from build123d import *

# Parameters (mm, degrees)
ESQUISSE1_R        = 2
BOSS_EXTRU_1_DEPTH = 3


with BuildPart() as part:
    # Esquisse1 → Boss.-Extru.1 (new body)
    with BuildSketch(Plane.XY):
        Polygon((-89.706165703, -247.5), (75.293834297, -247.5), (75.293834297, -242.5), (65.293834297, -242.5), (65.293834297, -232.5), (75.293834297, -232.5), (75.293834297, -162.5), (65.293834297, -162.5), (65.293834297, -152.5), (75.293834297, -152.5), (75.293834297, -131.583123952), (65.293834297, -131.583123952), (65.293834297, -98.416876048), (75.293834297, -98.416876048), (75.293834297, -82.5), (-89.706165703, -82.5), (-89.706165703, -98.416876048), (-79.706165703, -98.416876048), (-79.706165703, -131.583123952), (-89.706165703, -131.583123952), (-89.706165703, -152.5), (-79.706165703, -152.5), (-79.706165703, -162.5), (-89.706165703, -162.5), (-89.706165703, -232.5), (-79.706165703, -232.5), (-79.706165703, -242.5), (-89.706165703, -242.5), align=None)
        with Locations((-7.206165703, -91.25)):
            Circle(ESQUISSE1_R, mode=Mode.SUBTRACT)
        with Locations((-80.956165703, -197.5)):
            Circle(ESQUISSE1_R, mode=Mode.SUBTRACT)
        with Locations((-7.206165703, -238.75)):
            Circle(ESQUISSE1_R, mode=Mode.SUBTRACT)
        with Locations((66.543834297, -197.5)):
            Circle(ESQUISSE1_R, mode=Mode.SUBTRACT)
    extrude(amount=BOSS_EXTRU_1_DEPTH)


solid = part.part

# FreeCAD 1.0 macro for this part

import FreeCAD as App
import Part
import Sketcher
from FreeCAD import Vector
Q = App.Units.Quantity

doc = App.newDocument("Part")
params = doc.addObject("Spreadsheet::Sheet", "Params")
for row, (alias, value) in enumerate([
    ("sketch1_diameter", "4 mm"),
    ("sketch1_width", "165 mm"),
    ("sketch1_width2", "10 mm"),
    ("sketch1_height", "5 mm"),
    ("sketch1_height2", "70 mm"),
    ("pad1_length", "3 mm"),
], start=1):
    params.set(f"A{row}", alias)
    params.set(f"B{row}", "=" + value)
    params.setAlias(f"B{row}", alias)

body = doc.addObject("PartDesign::Body", "Body")

# Sketch on XY plane
sketch1 = body.newObject("Sketcher::SketchObject", "Sketch")
sketch1.AttachmentSupport = (doc.getObject("XY_Plane"), [""])
sketch1.MapMode = "FlatFace"
sketch1.addGeometry([
    Part.LineSegment(Vector(-89.706166, -247.5, 0), Vector(75.293834, -247.5, 0)),  # 0
    Part.LineSegment(Vector(75.293834, -247.5, 0), Vector(75.293834, -242.5, 0)),  # 1
    Part.LineSegment(Vector(75.293834, -242.5, 0), Vector(65.293834, -242.5, 0)),  # 2
    Part.LineSegment(Vector(65.293834, -242.5, 0), Vector(65.293834, -232.5, 0)),  # 3
    Part.LineSegment(Vector(65.293834, -232.5, 0), Vector(75.293834, -232.5, 0)),  # 4
    Part.LineSegment(Vector(75.293834, -232.5, 0), Vector(75.293834, -162.5, 0)),  # 5
    Part.LineSegment(Vector(75.293834, -162.5, 0), Vector(65.293834, -162.5, 0)),  # 6
    Part.LineSegment(Vector(65.293834, -162.5, 0), Vector(65.293834, -152.5, 0)),  # 7
    Part.LineSegment(Vector(65.293834, -152.5, 0), Vector(75.293834, -152.5, 0)),  # 8
    Part.LineSegment(Vector(75.293834, -152.5, 0), Vector(75.293834, -131.583124, 0)),  # 9
    Part.LineSegment(Vector(75.293834, -131.583124, 0), Vector(65.293834, -131.583124, 0)),  # 10
    Part.LineSegment(Vector(65.293834, -131.583124, 0), Vector(65.293834, -98.416876, 0)),  # 11
    Part.LineSegment(Vector(65.293834, -98.416876, 0), Vector(75.293834, -98.416876, 0)),  # 12
    Part.LineSegment(Vector(75.293834, -98.416876, 0), Vector(75.293834, -82.5, 0)),  # 13
    Part.LineSegment(Vector(75.293834, -82.5, 0), Vector(-89.706166, -82.5, 0)),  # 14
    Part.LineSegment(Vector(-89.706166, -82.5, 0), Vector(-89.706166, -98.416876, 0)),  # 15
    Part.LineSegment(Vector(-89.706166, -98.416876, 0), Vector(-79.706166, -98.416876, 0)),  # 16
    Part.LineSegment(Vector(-79.706166, -98.416876, 0), Vector(-79.706166, -131.583124, 0)),  # 17
    Part.LineSegment(Vector(-79.706166, -131.583124, 0), Vector(-89.706166, -131.583124, 0)),  # 18
    Part.LineSegment(Vector(-89.706166, -131.583124, 0), Vector(-89.706166, -152.5, 0)),  # 19
    Part.LineSegment(Vector(-89.706166, -152.5, 0), Vector(-79.706166, -152.5, 0)),  # 20
    Part.LineSegment(Vector(-79.706166, -152.5, 0), Vector(-79.706166, -162.5, 0)),  # 21
    Part.LineSegment(Vector(-79.706166, -162.5, 0), Vector(-89.706166, -162.5, 0)),  # 22
    Part.LineSegment(Vector(-89.706166, -162.5, 0), Vector(-89.706166, -232.5, 0)),  # 23
    Part.LineSegment(Vector(-89.706166, -232.5, 0), Vector(-79.706166, -232.5, 0)),  # 24
    Part.LineSegment(Vector(-79.706166, -232.5, 0), Vector(-79.706166, -242.5, 0)),  # 25
    Part.LineSegment(Vector(-79.706166, -242.5, 0), Vector(-89.706166, -242.5, 0)),  # 26
    Part.LineSegment(Vector(-89.706166, -242.5, 0), Vector(-89.706166, -247.5, 0)),  # 27
    Part.Circle(Vector(-80.956166, -197.5, 0), Vector(0, 0, 1), 2),  # 28
    Part.Circle(Vector(-7.206166, -238.75, 0), Vector(0, 0, 1), 2),  # 29
    Part.Circle(Vector(66.543834, -197.5, 0), Vector(0, 0, 1), 2),  # 30
    Part.Circle(Vector(-7.206166, -91.25, 0), Vector(0, 0, 1), 2),  # 31
], False)
sketch1.addConstraint([
    Sketcher.Constraint("Coincident", 0, 2, 1, 1),
    Sketcher.Constraint("Coincident", 1, 2, 2, 1),
    Sketcher.Constraint("Coincident", 2, 2, 3, 1),
    Sketcher.Constraint("Coincident", 3, 2, 4, 1),
    Sketcher.Constraint("Coincident", 4, 2, 5, 1),
    Sketcher.Constraint("Coincident", 5, 2, 6, 1),
    Sketcher.Constraint("Coincident", 6, 2, 7, 1),
    Sketcher.Constraint("Coincident", 7, 2, 8, 1),
    Sketcher.Constraint("Coincident", 8, 2, 9, 1),
    Sketcher.Constraint("Coincident", 9, 2, 10, 1),
    Sketcher.Constraint("Coincident", 10, 2, 11, 1),
    Sketcher.Constraint("Coincident", 11, 2, 12, 1),
    Sketcher.Constraint("Coincident", 12, 2, 13, 1),
    Sketcher.Constraint("Coincident", 13, 2, 14, 1),
    Sketcher.Constraint("Coincident", 14, 2, 15, 1),
    Sketcher.Constraint("Coincident", 15, 2, 16, 1),
    Sketcher.Constraint("Coincident", 16, 2, 17, 1),
    Sketcher.Constraint("Coincident", 17, 2, 18, 1),
    Sketcher.Constraint("Coincident", 18, 2, 19, 1),
    Sketcher.Constraint("Coincident", 19, 2, 20, 1),
    Sketcher.Constraint("Coincident", 20, 2, 21, 1),
    Sketcher.Constraint("Coincident", 21, 2, 22, 1),
    Sketcher.Constraint("Coincident", 22, 2, 23, 1),
    Sketcher.Constraint("Coincident", 23, 2, 24, 1),
    Sketcher.Constraint("Coincident", 24, 2, 25, 1),
    Sketcher.Constraint("Coincident", 25, 2, 26, 1),
    Sketcher.Constraint("Coincident", 26, 2, 27, 1),
    Sketcher.Constraint("Coincident", 27, 2, 0, 1),
    Sketcher.Constraint("Horizontal", 0),
    Sketcher.Constraint("Vertical", 1),
    Sketcher.Constraint("Horizontal", 2),
    Sketcher.Constraint("Vertical", 3),
    Sketcher.Constraint("Horizontal", 4),
    Sketcher.Constraint("Vertical", 5),
    Sketcher.Constraint("Horizontal", 6),
    Sketcher.Constraint("Vertical", 7),
    Sketcher.Constraint("Horizontal", 8),
    Sketcher.Constraint("Vertical", 9),
    Sketcher.Constraint("Horizontal", 10),
    Sketcher.Constraint("Vertical", 11),
    Sketcher.Constraint("Horizontal", 12),
    Sketcher.Constraint("Vertical", 13),
    Sketcher.Constraint("Horizontal", 14),
    Sketcher.Constraint("Vertical", 15),
    Sketcher.Constraint("Horizontal", 16),
    Sketcher.Constraint("Vertical", 17),
    Sketcher.Constraint("Horizontal", 18),
    Sketcher.Constraint("Vertical", 19),
    Sketcher.Constraint("Horizontal", 20),
    Sketcher.Constraint("Vertical", 21),
    Sketcher.Constraint("Horizontal", 22),
    Sketcher.Constraint("Vertical", 23),
    Sketcher.Constraint("Horizontal", 24),
    Sketcher.Constraint("Vertical", 25),
    Sketcher.Constraint("Horizontal", 26),
    Sketcher.Constraint("Vertical", 27),
    Sketcher.Constraint("Equal", 28, 29),
    Sketcher.Constraint("Equal", 29, 30),
    Sketcher.Constraint("Equal", 30, 31),
    Sketcher.Constraint("Horizontal", 28, 3, 30, 3),
    Sketcher.Constraint("Horizontal", 12, 2, 15, 2),
    Sketcher.Constraint("Horizontal", 10, 2, 17, 2),
    Sketcher.Constraint("Horizontal", 8, 2, 19, 2),
    Sketcher.Constraint("Horizontal", 6, 2, 21, 2),
    Sketcher.Constraint("Horizontal", 4, 2, 23, 2),
    Sketcher.Constraint("Horizontal", 2, 2, 25, 2),
    Sketcher.Constraint("Vertical", 29, 3, 31, 3),
    Sketcher.Constraint("Vertical", 1, 2, 4, 2),
    Sketcher.Constraint("Vertical", 3, 2, 6, 2),
    Sketcher.Constraint("Vertical", 5, 2, 8, 2),
    Sketcher.Constraint("Vertical", 7, 2, 10, 2),
    Sketcher.Constraint("Vertical", 9, 2, 12, 2),
    Sketcher.Constraint("Vertical", 15, 2, 18, 2),
    Sketcher.Constraint("Vertical", 17, 2, 20, 2),
    Sketcher.Constraint("Vertical", 19, 2, 22, 2),
    Sketcher.Constraint("Vertical", 21, 2, 24, 2),
    Sketcher.Constraint("Vertical", 23, 2, 26, 2),
    Sketcher.Constraint("Equal", 12, 16),
    Sketcher.Constraint("Equal", 26, 3),
    Sketcher.Constraint("Equal", 3, 7),
    Sketcher.Constraint("Diameter", 28, Q("4 mm")),
    Sketcher.Constraint("DistanceX", 0, 1, 0, 2, Q("165 mm")),
    Sketcher.Constraint("DistanceX", 2, 2, 2, 1, Q("10 mm")),
    Sketcher.Constraint("DistanceY", 1, 1, 1, 2, Q("5 mm")),
    Sketcher.Constraint("DistanceY", 5, 1, 5, 2, Q("70 mm")),
    Sketcher.Constraint("DistanceY", 0, 2, 30, 3, Q("50 mm")),
    Sketcher.Constraint("DistanceY", 8, 2, 13, 2, Q("70 mm")),
    Sketcher.Constraint("DistanceY", 28, 3, -1, 1, Q("197.5 mm")),
    Sketcher.Constraint("DistanceX", 28, 3, 30, 3, Q("147.5 mm")),
    Sketcher.Constraint("DistanceY", 29, 3, 31, 3, Q("147.5 mm")),
    Sketcher.Constraint("DistanceX", 29, 3, 0, 2, Q("82.5 mm")),
    Sketcher.Constraint("DistanceY", 29, 3, -1, 1, Q("238.75 mm")),
    Sketcher.Constraint("DistanceX", 28, 3, 29, 3, Q("73.75 mm")),
    Sketcher.Constraint("DistanceY", 9, 1, 9, 2, Q("20.916876 mm")),
    Sketcher.Constraint("DistanceY", 11, 1, 11, 2, Q("33.166248 mm")),
    Sketcher.Constraint("DistanceX", 28, 3, -1, 1, Q("80.956166 mm")),
])
sketch1.setExpression("Constraints[80]", "Params.sketch1_diameter")
sketch1.setExpression("Constraints[81]", "Params.sketch1_width")
sketch1.setExpression("Constraints[82]", "Params.sketch1_width2")
sketch1.setExpression("Constraints[83]", "Params.sketch1_height")
sketch1.setExpression("Constraints[84]", "Params.sketch1_height2")
pad1 = body.newObject("PartDesign::Pad", "Pad")
pad1.Profile = sketch1
pad1.setExpression("Length", "Params.pad1_length")

doc.recompute()
